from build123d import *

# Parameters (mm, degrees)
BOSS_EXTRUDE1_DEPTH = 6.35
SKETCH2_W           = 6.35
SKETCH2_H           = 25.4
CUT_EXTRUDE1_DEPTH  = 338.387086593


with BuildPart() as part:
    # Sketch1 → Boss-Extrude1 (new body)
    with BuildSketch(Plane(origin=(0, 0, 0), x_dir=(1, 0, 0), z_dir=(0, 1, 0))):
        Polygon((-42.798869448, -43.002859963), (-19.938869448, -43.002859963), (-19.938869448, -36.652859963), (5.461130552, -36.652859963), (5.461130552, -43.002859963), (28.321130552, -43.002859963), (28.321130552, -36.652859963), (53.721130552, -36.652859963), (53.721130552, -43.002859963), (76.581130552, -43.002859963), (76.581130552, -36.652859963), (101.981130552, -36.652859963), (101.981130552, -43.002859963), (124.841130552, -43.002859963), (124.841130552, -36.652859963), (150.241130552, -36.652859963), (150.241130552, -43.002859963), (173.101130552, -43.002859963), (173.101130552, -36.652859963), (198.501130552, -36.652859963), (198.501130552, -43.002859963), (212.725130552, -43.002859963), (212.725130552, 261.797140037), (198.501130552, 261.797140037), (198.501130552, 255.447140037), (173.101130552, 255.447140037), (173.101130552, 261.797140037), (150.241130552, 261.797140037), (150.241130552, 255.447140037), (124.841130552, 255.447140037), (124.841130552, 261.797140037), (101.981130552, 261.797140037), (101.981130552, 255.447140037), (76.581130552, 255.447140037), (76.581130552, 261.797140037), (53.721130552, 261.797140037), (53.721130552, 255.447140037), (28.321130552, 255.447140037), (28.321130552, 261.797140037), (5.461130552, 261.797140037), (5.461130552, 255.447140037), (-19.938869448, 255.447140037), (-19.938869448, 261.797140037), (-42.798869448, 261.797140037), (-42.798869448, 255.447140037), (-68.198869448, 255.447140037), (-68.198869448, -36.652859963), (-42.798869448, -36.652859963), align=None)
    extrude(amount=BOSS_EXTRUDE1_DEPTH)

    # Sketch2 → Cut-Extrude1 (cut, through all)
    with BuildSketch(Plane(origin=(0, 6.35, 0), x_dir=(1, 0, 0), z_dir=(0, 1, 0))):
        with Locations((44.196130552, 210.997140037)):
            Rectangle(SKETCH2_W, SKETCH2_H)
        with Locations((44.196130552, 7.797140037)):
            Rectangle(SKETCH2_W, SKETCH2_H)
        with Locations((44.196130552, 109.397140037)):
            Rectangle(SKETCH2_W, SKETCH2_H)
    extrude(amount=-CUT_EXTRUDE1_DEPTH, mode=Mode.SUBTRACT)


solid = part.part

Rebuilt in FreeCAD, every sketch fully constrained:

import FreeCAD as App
import Part
import Sketcher
Q = App.Units.Quantity


def add_polygon(sketch, points):
    """Adds a closed chain of lines whose ends are joined by coincident constraints."""
    first, n = sketch.GeometryCount, len(points)
    for a, b in zip(points, points[1:] + points[:1]):
        sketch.addGeometry(Part.LineSegment(App.Vector(*a, 0), App.Vector(*b, 0)), False)
    for i in range(n):
        sketch.addConstraint(Sketcher.Constraint("Coincident", first + i, 2, first + (i + 1) % n, 1))

doc = App.newDocument("Part")
body = doc.addObject("PartDesign::Body", "Body")

# Sketch on XZ plane
sketch1 = doc.addObject("Sketcher::SketchObject", "Sketch")
body.addObject(sketch1)
sketch1.AttachmentSupport = (doc.XZ_Plane, [""])
sketch1.MapMode = "FlatFace"
add_polygon(sketch1, [(-43, 43), (-20, 43), (-20, 37), (5, 37), (5, 43), (28, 43), (28, 37), (54, 37), (54, 43), (77, 43), (77, 37), (102, 37), (102, 43), (125, 43), (125, 37), (150, 37), (150, 43), (173, 43), (173, 37), (199, 37), (199, 43), (213, 43), (213, -262), (199, -262), (199, -255), (173, -255), (173, -262), (150, -262), (150, -255), (125, -255), (125, -262), (102, -262), (102, -255), (77, -255), (77, -262), (54, -262), (54, -255), (28, -255), (28, -262), (5, -262), (5, -255), (-20, -255), (-20, -262), (-43, -262), (-43, -255), (-68, -255), (-68, 37), (-43, 37)])  # lines 0-47
sketch1.addConstraint(Sketcher.Constraint("Horizontal", 0))
sketch1.addConstraint(Sketcher.Constraint("Vertical", 1))
sketch1.addConstraint(Sketcher.Constraint("Horizontal", 2))
sketch1.addConstraint(Sketcher.Constraint("Vertical", 3))
sketch1.addConstraint(Sketcher.Constraint("Horizontal", 4))
sketch1.addConstraint(Sketcher.Constraint("Vertical", 5))
sketch1.addConstraint(Sketcher.Constraint("Horizontal", 6))
sketch1.addConstraint(Sketcher.Constraint("Vertical", 7))
sketch1.addConstraint(Sketcher.Constraint("Horizontal", 8))
sketch1.addConstraint(Sketcher.Constraint("Vertical", 9))
sketch1.addConstraint(Sketcher.Constraint("Horizontal", 10))
sketch1.addConstraint(Sketcher.Constraint("Vertical", 11))
sketch1.addConstraint(Sketcher.Constraint("Horizontal", 12))
sketch1.addConstraint(Sketcher.Constraint("Vertical", 13))
sketch1.addConstraint(Sketcher.Constraint("Horizontal", 14))
sketch1.addConstraint(Sketcher.Constraint("Vertical", 15))
sketch1.addConstraint(Sketcher.Constraint("Horizontal", 16))
sketch1.addConstraint(Sketcher.Constraint("Vertical", 17))
sketch1.addConstraint(Sketcher.Constraint("Horizontal", 18))
sketch1.addConstraint(Sketcher.Constraint("Vertical", 19))
sketch1.addConstraint(Sketcher.Constraint("Horizontal", 20))
sketch1.addConstraint(Sketcher.Constraint("Vertical", 21))
sketch1.addConstraint(Sketcher.Constraint("Horizontal", 22))
sketch1.addConstraint(Sketcher.Constraint("Vertical", 23))
sketch1.addConstraint(Sketcher.Constraint("Horizontal", 24))
sketch1.addConstraint(Sketcher.Constraint("Vertical", 25))
sketch1.addConstraint(Sketcher.Constraint("Horizontal", 26))
sketch1.addConstraint(Sketcher.Constraint("Vertical", 27))
sketch1.addConstraint(Sketcher.Constraint("Horizontal", 28))
sketch1.addConstraint(Sketcher.Constraint("Vertical", 29))
sketch1.addConstraint(Sketcher.Constraint("Horizontal", 30))
sketch1.addConstraint(Sketcher.Constraint("Vertical", 31))
sketch1.addConstraint(Sketcher.Constraint("Horizontal", 32))
sketch1.addConstraint(Sketcher.Constraint("Vertical", 33))
sketch1.addConstraint(Sketcher.Constraint("Horizontal", 34))
sketch1.addConstraint(Sketcher.Constraint("Vertical", 35))
sketch1.addConstraint(Sketcher.Constraint("Horizontal", 36))
sketch1.addConstraint(Sketcher.Constraint("Vertical", 37))
sketch1.addConstraint(Sketcher.Constraint("Horizontal", 38))
sketch1.addConstraint(Sketcher.Constraint("Vertical", 39))
sketch1.addConstraint(Sketcher.Constraint("Horizontal", 40))
sketch1.addConstraint(Sketcher.Constraint("Vertical", 41))
sketch1.addConstraint(Sketcher.Constraint("Horizontal", 42))
sketch1.addConstraint(Sketcher.Constraint("Vertical", 43))
sketch1.addConstraint(Sketcher.Constraint("Horizontal", 44))
sketch1.addConstraint(Sketcher.Constraint("Vertical", 45))
sketch1.addConstraint(Sketcher.Constraint("Horizontal", 46))
sketch1.addConstraint(Sketcher.Constraint("Vertical", 47))
sketch1.addConstraint(Sketcher.Constraint("Horizontal", 0, 2, 3, 2))
sketch1.addConstraint(Sketcher.Constraint("Horizontal", 2, 2, 5, 2))
sketch1.addConstraint(Sketcher.Constraint("Horizontal", 4, 2, 7, 2))
sketch1.addConstraint(Sketcher.Constraint("Horizontal", 6, 2, 9, 2))
sketch1.addConstraint(Sketcher.Constraint("Horizontal", 8, 2, 11, 2))
sketch1.addConstraint(Sketcher.Constraint("Horizontal", 10, 2, 13, 2))
sketch1.addConstraint(Sketcher.Constraint("Horizontal", 12, 2, 15, 2))
sketch1.addConstraint(Sketcher.Constraint("Horizontal", 14, 2, 17, 2))
sketch1.addConstraint(Sketcher.Constraint("Horizontal", 16, 2, 19, 2))
sketch1.addConstraint(Sketcher.Constraint("Horizontal", 22, 2, 25, 2))
sketch1.addConstraint(Sketcher.Constraint("Horizontal", 24, 2, 27, 2))
sketch1.addConstraint(Sketcher.Constraint("Horizontal", 26, 2, 29, 2))
sketch1.addConstraint(Sketcher.Constraint("Horizontal", 28, 2, 31, 2))
sketch1.addConstraint(Sketcher.Constraint("Horizontal", 30, 2, 33, 2))
sketch1.addConstraint(Sketcher.Constraint("Horizontal", 32, 2, 35, 2))
sketch1.addConstraint(Sketcher.Constraint("Horizontal", 34, 2, 37, 2))
sketch1.addConstraint(Sketcher.Constraint("Horizontal", 36, 2, 39, 2))
sketch1.addConstraint(Sketcher.Constraint("Horizontal", 38, 2, 41, 2))
sketch1.addConstraint(Sketcher.Constraint("Horizontal", 40, 2, 43, 2))
sketch1.addConstraint(Sketcher.Constraint("Horizontal", 18, 2, 45, 2))
sketch1.addConstraint(Sketcher.Constraint("Vertical", 19, 2, 22, 2))
sketch1.addConstraint(Sketcher.Constraint("Vertical", 17, 2, 24, 2))
sketch1.addConstraint(Sketcher.Constraint("Vertical", 15, 2, 26, 2))
sketch1.addConstraint(Sketcher.Constraint("Vertical", 13, 2, 28, 2))
sketch1.addConstraint(Sketcher.Constraint("Vertical", 11, 2, 30, 2))
sketch1.addConstraint(Sketcher.Constraint("Vertical", 9, 2, 32, 2))
sketch1.addConstraint(Sketcher.Constraint("Vertical", 7, 2, 34, 2))
sketch1.addConstraint(Sketcher.Constraint("Vertical", 5, 2, 36, 2))
sketch1.addConstraint(Sketcher.Constraint("Vertical", 3, 2, 38, 2))
sketch1.addConstraint(Sketcher.Constraint("Vertical", 1, 2, 40, 2))
sketch1.addConstraint(Sketcher.Constraint("Vertical", 43, 2, 46, 2))
sketch1.addConstraint(Sketcher.Constraint("Equal", 0, 4))
sketch1.addConstraint(Sketcher.Constraint("Equal", 2, 6))
sketch1.addConstraint(Sketcher.Constraint("Equal", 4, 8))
sketch1.addConstraint(Sketcher.Constraint("Equal", 6, 10))
sketch1.addConstraint(Sketcher.Constraint("Equal", 8, 12))
sketch1.addConstraint(Sketcher.Constraint("Equal", 10, 14))
sketch1.addConstraint(Sketcher.Constraint("Equal", 12, 16))
sketch1.addConstraint(Sketcher.Constraint("Equal", 14, 18))
sketch1.addConstraint(Sketcher.Constraint("Equal", 40, 44))
sketch1.addConstraint(Sketcher.Constraint("Equal", 19, 23))
sketch1.addConstraint(Sketcher.Constraint("DistanceX", 2, 1, 2, 2, Q("1 in")))
sketch1.addConstraint(Sketcher.Constraint("DistanceY", 21, 2, 21, 1, Q("12 in")))
sketch1.addConstraint(Sketcher.Constraint("DistanceX", 0, 1, 0, 2, Q("0.9 in")))
sketch1.addConstraint(Sketcher.Constraint("DistanceY", 45, 1, 45, 2, Q("11.5 in")))
sketch1.addConstraint(Sketcher.Constraint("DistanceX", 20, 1, 20, 2, Q("0.56 in")))
sketch1.addConstraint(Sketcher.Constraint("DistanceX", 0, 2, -1, 1, 19.938869))
sketch1.addConstraint(Sketcher.Constraint("DistanceY", -1, 1, 0, 2, 43.00286))
pad1 = doc.addObject("PartDesign::Pad", "Pad")
body.addObject(pad1)
pad1.Profile = sketch1
pad1.Length = Q("0.25 in")
pad1.Reversed = True

# Sketch on XZ plane
sketch2 = doc.addObject("Sketcher::SketchObject", "Sketch001")
body.addObject(sketch2)
sketch2.AttachmentSupport = (doc.XZ_Plane, [""])
sketch2.MapMode = "FlatFace"
sketch2.AttachmentOffset = App.Placement(App.Vector(0, 0, -0.25 * 25.4), App.Rotation())
add_polygon(sketch2, [(41, -224), (41, -198), (47, -198), (47, -224)])  # lines 0-3
add_polygon(sketch2, [(41, -20), (41, 5), (47, 5), (47, -20)])  # lines 4-7
add_polygon(sketch2, [(41, -122), (41, -97), (47, -97), (47, -122)])  # lines 8-11
sketch2.addConstraint(Sketcher.Constraint("Vertical", 0))
sketch2.addConstraint(Sketcher.Constraint("Horizontal", 1))
sketch2.addConstraint(Sketcher.Constraint("Vertical", 2))
sketch2.addConstraint(Sketcher.Constraint("Horizontal", 3))
sketch2.addConstraint(Sketcher.Constraint("Vertical", 4))
sketch2.addConstraint(Sketcher.Constraint("Horizontal", 5))
sketch2.addConstraint(Sketcher.Constraint("Vertical", 6))
sketch2.addConstraint(Sketcher.Constraint("Horizontal", 7))
sketch2.addConstraint(Sketcher.Constraint("Vertical", 8))
sketch2.addConstraint(Sketcher.Constraint("Horizontal", 9))
sketch2.addConstraint(Sketcher.Constraint("Vertical", 10))
sketch2.addConstraint(Sketcher.Constraint("Horizontal", 11))
sketch2.addConstraint(Sketcher.Constraint("Vertical", 3, 2, 4, 2))
sketch2.addConstraint(Sketcher.Constraint("Vertical", 2, 2, 5, 2))
sketch2.addConstraint(Sketcher.Constraint("Vertical", 7, 2, 8, 2))
sketch2.addConstraint(Sketcher.Constraint("Vertical", 6, 2, 9, 2))
sketch2.addConstraint(Sketcher.Constraint("Equal", 2, 4))
sketch2.addConstraint(Sketcher.Constraint("Equal", 6, 8))
sketch2.addConstraint(Sketcher.Constraint("DistanceY", 0, 1, 0, 2, Q("1 in")))
sketch2.addConstraint(Sketcher.Constraint("DistanceY", 0, 2, 4, 2, Q("8 in")))
sketch2.addConstraint(Sketcher.Constraint("DistanceY", 8, 2, 7, 2, Q("3 in")))
sketch2.addConstraint(Sketcher.Constraint("DistanceX", 1, 1, 1, 2, Q("0.25 in")))
sketch2.addConstraint(Sketcher.Constraint("DistanceX", -1, 1, 0, 2, 41.021131))
sketch2.addConstraint(Sketcher.Constraint("DistanceY", 0, 2, -1, 1, 198.29714))
pocket1 = doc.addObject("PartDesign::Pocket", "Pocket")
body.addObject(pocket1)
pocket1.Profile = sketch2
pocket1.Type = "ThroughAll"
pocket1.Reversed = True

doc.recompute()
